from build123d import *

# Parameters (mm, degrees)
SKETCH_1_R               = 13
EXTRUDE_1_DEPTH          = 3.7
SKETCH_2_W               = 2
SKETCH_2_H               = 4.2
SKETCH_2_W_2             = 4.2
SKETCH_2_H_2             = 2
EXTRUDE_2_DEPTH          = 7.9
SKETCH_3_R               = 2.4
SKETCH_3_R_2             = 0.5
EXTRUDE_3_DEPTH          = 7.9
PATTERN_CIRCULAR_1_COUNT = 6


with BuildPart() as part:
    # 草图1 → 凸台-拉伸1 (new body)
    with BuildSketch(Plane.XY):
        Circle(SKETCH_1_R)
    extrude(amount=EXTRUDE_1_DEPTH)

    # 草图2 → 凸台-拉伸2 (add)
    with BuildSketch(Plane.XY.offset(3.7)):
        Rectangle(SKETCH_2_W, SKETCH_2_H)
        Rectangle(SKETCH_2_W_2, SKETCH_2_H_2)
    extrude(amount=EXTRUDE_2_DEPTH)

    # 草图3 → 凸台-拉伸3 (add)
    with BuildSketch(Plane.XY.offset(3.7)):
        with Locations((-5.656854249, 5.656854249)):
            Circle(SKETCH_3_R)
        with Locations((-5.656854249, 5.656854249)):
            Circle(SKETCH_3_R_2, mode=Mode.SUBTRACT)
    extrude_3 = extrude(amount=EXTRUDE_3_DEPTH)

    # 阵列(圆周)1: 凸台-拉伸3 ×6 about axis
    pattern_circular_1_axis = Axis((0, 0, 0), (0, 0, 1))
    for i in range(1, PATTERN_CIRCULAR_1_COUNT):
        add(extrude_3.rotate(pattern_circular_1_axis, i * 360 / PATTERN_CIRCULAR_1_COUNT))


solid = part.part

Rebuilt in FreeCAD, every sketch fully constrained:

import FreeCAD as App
import Part
import Sketcher
from FreeCAD import Vector
Q = App.Units.Quantity


def add_polygon(sketch, points):
    """Adds a closed chain of lines whose ends are joined by coincident constraints."""
    first, n = sketch.GeometryCount, len(points)
    for a, b in zip(points, points[1:] + points[:1]):
        sketch.addGeometry(Part.LineSegment(App.Vector(*a, 0), App.Vector(*b, 0)), False)
    for i in range(n):
        sketch.addConstraint(Sketcher.Constraint("Coincident", first + i, 2, first + (i + 1) % n, 1))

doc = App.newDocument("Part")
body = doc.addObject("PartDesign::Body", "Body")

# Sketch on XY plane
sketch1 = doc.addObject("Sketcher::SketchObject", "Sketch")
body.addObject(sketch1)
sketch1.AttachmentSupport = (doc.XY_Plane, [""])
sketch1.MapMode = "FlatFace"
sketch1.addGeometry(Part.Circle(Vector(0, 0, 0), Vector(0, 0, 1), 13), False)
sketch1.addConstraint(Sketcher.Constraint("Coincident", 0, 3, -1, 1))
sketch1.addConstraint(Sketcher.Constraint("Diameter", 0, Q("26 mm")))
pad1 = doc.addObject("PartDesign::Pad", "Pad")
body.addObject(pad1)
pad1.Profile = sketch1
pad1.Length = 3.7

# Sketch on XY plane
sketch2 = doc.addObject("Sketcher::SketchObject", "Sketch001")
body.addObject(sketch2)
sketch2.AttachmentSupport = (doc.XY_Plane, [""])
sketch2.MapMode = "FlatFace"
sketch2.AttachmentOffset = App.Placement(Vector(0, 0, 3.7), App.Rotation())
add_polygon(sketch2, [(-1, -1), (-1, -2.1), (1, -2.1), (1, -1), (2.1, -1), (2.1, 1), (1, 1), (1, 2.1), (-1, 2.1), (-1, 1), (-2.1, 1), (-2.1, -1)])  # lines 0-11
sketch2.addConstraint(Sketcher.Constraint("Vertical", 0))
sketch2.addConstraint(Sketcher.Constraint("Horizontal", 1))
sketch2.addConstraint(Sketcher.Constraint("Vertical", 2))
sketch2.addConstraint(Sketcher.Constraint("Horizontal", 3))
sketch2.addConstraint(Sketcher.Constraint("Vertical", 4))
sketch2.addConstraint(Sketcher.Constraint("Horizontal", 5))
sketch2.addConstraint(Sketcher.Constraint("Vertical", 6))
sketch2.addConstraint(Sketcher.Constraint("Horizontal", 7))
sketch2.addConstraint(Sketcher.Constraint("Vertical", 8))
sketch2.addConstraint(Sketcher.Constraint("Horizontal", 9))
sketch2.addConstraint(Sketcher.Constraint("Vertical", 10))
sketch2.addConstraint(Sketcher.Constraint("Horizontal", 11))
sketch2.addConstraint(Sketcher.Constraint("Symmetric", 0, 2, 6, 2, -1, 1))
sketch2.addConstraint(Sketcher.Constraint("Symmetric", 2, 2, 8, 2, -1, 1))
sketch2.addConstraint(Sketcher.Constraint("Symmetric", 4, 2, 10, 2, -1, 1))
sketch2.addConstraint(Sketcher.Constraint("Symmetric", 5, 2, 8, 2, -2))
sketch2.addConstraint(Sketcher.Constraint("Equal", 11, 0))
sketch2.addConstraint(Sketcher.Constraint("Equal", 7, 4))
sketch2.addConstraint(Sketcher.Constraint("DistanceX", 1, 1, 1, 2, Q("2 mm")))
sketch2.addConstraint(Sketcher.Constraint("DistanceX", 3, 1, 3, 2, Q("1.1 mm")))
pad2 = doc.addObject("PartDesign::Pad", "Pad001")
body.addObject(pad2)
pad2.Profile = sketch2
pad2.Length = 7.9

# Sketch on XY plane
sketch3 = doc.addObject("Sketcher::SketchObject", "Sketch002")
body.addObject(sketch3)
sketch3.AttachmentSupport = (doc.XY_Plane, [""])
sketch3.MapMode = "FlatFace"
sketch3.AttachmentOffset = App.Placement(Vector(0, 0, 3.7), App.Rotation())
sketch3.addGeometry(Part.Circle(Vector(-5.7, 5.7, 0), Vector(0, 0, 1), 2.4), False)
sketch3.addGeometry(Part.Circle(Vector(-5.7, 5.7, 0), Vector(0, 0, 1), 0.5), False)
sketch3.addConstraint(Sketcher.Constraint("Coincident", 1, 3, 0, 3))
sketch3.addConstraint(Sketcher.Constraint("Diameter", 1, Q("1 mm")))
sketch3.addConstraint(Sketcher.Constraint("Diameter", 0, Q("4.8 mm")))
sketch3.addConstraint(Sketcher.Constraint("DistanceX", 0, 3, -1, 1, Q("5.656854 mm")))
sketch3.addConstraint(Sketcher.Constraint("DistanceY", -1, 1, 0, 3, Q("5.656854 mm")))
pad3 = doc.addObject("PartDesign::Pad", "Pad002")
body.addObject(pad3)
pad3.Profile = sketch3
pad3.Length = 7.9
doc.recompute()

polarpattern = doc.addObject("PartDesign::PolarPattern", "PolarPattern")
body.addObject(polarpattern)
polarpattern.Originals = [pad3]
polarpattern.Axis = (doc.Z_Axis, [""])
polarpattern.Angle = 360
polarpattern.Occurrences = 6
body.Tip = polarpattern

doc.recompute()
